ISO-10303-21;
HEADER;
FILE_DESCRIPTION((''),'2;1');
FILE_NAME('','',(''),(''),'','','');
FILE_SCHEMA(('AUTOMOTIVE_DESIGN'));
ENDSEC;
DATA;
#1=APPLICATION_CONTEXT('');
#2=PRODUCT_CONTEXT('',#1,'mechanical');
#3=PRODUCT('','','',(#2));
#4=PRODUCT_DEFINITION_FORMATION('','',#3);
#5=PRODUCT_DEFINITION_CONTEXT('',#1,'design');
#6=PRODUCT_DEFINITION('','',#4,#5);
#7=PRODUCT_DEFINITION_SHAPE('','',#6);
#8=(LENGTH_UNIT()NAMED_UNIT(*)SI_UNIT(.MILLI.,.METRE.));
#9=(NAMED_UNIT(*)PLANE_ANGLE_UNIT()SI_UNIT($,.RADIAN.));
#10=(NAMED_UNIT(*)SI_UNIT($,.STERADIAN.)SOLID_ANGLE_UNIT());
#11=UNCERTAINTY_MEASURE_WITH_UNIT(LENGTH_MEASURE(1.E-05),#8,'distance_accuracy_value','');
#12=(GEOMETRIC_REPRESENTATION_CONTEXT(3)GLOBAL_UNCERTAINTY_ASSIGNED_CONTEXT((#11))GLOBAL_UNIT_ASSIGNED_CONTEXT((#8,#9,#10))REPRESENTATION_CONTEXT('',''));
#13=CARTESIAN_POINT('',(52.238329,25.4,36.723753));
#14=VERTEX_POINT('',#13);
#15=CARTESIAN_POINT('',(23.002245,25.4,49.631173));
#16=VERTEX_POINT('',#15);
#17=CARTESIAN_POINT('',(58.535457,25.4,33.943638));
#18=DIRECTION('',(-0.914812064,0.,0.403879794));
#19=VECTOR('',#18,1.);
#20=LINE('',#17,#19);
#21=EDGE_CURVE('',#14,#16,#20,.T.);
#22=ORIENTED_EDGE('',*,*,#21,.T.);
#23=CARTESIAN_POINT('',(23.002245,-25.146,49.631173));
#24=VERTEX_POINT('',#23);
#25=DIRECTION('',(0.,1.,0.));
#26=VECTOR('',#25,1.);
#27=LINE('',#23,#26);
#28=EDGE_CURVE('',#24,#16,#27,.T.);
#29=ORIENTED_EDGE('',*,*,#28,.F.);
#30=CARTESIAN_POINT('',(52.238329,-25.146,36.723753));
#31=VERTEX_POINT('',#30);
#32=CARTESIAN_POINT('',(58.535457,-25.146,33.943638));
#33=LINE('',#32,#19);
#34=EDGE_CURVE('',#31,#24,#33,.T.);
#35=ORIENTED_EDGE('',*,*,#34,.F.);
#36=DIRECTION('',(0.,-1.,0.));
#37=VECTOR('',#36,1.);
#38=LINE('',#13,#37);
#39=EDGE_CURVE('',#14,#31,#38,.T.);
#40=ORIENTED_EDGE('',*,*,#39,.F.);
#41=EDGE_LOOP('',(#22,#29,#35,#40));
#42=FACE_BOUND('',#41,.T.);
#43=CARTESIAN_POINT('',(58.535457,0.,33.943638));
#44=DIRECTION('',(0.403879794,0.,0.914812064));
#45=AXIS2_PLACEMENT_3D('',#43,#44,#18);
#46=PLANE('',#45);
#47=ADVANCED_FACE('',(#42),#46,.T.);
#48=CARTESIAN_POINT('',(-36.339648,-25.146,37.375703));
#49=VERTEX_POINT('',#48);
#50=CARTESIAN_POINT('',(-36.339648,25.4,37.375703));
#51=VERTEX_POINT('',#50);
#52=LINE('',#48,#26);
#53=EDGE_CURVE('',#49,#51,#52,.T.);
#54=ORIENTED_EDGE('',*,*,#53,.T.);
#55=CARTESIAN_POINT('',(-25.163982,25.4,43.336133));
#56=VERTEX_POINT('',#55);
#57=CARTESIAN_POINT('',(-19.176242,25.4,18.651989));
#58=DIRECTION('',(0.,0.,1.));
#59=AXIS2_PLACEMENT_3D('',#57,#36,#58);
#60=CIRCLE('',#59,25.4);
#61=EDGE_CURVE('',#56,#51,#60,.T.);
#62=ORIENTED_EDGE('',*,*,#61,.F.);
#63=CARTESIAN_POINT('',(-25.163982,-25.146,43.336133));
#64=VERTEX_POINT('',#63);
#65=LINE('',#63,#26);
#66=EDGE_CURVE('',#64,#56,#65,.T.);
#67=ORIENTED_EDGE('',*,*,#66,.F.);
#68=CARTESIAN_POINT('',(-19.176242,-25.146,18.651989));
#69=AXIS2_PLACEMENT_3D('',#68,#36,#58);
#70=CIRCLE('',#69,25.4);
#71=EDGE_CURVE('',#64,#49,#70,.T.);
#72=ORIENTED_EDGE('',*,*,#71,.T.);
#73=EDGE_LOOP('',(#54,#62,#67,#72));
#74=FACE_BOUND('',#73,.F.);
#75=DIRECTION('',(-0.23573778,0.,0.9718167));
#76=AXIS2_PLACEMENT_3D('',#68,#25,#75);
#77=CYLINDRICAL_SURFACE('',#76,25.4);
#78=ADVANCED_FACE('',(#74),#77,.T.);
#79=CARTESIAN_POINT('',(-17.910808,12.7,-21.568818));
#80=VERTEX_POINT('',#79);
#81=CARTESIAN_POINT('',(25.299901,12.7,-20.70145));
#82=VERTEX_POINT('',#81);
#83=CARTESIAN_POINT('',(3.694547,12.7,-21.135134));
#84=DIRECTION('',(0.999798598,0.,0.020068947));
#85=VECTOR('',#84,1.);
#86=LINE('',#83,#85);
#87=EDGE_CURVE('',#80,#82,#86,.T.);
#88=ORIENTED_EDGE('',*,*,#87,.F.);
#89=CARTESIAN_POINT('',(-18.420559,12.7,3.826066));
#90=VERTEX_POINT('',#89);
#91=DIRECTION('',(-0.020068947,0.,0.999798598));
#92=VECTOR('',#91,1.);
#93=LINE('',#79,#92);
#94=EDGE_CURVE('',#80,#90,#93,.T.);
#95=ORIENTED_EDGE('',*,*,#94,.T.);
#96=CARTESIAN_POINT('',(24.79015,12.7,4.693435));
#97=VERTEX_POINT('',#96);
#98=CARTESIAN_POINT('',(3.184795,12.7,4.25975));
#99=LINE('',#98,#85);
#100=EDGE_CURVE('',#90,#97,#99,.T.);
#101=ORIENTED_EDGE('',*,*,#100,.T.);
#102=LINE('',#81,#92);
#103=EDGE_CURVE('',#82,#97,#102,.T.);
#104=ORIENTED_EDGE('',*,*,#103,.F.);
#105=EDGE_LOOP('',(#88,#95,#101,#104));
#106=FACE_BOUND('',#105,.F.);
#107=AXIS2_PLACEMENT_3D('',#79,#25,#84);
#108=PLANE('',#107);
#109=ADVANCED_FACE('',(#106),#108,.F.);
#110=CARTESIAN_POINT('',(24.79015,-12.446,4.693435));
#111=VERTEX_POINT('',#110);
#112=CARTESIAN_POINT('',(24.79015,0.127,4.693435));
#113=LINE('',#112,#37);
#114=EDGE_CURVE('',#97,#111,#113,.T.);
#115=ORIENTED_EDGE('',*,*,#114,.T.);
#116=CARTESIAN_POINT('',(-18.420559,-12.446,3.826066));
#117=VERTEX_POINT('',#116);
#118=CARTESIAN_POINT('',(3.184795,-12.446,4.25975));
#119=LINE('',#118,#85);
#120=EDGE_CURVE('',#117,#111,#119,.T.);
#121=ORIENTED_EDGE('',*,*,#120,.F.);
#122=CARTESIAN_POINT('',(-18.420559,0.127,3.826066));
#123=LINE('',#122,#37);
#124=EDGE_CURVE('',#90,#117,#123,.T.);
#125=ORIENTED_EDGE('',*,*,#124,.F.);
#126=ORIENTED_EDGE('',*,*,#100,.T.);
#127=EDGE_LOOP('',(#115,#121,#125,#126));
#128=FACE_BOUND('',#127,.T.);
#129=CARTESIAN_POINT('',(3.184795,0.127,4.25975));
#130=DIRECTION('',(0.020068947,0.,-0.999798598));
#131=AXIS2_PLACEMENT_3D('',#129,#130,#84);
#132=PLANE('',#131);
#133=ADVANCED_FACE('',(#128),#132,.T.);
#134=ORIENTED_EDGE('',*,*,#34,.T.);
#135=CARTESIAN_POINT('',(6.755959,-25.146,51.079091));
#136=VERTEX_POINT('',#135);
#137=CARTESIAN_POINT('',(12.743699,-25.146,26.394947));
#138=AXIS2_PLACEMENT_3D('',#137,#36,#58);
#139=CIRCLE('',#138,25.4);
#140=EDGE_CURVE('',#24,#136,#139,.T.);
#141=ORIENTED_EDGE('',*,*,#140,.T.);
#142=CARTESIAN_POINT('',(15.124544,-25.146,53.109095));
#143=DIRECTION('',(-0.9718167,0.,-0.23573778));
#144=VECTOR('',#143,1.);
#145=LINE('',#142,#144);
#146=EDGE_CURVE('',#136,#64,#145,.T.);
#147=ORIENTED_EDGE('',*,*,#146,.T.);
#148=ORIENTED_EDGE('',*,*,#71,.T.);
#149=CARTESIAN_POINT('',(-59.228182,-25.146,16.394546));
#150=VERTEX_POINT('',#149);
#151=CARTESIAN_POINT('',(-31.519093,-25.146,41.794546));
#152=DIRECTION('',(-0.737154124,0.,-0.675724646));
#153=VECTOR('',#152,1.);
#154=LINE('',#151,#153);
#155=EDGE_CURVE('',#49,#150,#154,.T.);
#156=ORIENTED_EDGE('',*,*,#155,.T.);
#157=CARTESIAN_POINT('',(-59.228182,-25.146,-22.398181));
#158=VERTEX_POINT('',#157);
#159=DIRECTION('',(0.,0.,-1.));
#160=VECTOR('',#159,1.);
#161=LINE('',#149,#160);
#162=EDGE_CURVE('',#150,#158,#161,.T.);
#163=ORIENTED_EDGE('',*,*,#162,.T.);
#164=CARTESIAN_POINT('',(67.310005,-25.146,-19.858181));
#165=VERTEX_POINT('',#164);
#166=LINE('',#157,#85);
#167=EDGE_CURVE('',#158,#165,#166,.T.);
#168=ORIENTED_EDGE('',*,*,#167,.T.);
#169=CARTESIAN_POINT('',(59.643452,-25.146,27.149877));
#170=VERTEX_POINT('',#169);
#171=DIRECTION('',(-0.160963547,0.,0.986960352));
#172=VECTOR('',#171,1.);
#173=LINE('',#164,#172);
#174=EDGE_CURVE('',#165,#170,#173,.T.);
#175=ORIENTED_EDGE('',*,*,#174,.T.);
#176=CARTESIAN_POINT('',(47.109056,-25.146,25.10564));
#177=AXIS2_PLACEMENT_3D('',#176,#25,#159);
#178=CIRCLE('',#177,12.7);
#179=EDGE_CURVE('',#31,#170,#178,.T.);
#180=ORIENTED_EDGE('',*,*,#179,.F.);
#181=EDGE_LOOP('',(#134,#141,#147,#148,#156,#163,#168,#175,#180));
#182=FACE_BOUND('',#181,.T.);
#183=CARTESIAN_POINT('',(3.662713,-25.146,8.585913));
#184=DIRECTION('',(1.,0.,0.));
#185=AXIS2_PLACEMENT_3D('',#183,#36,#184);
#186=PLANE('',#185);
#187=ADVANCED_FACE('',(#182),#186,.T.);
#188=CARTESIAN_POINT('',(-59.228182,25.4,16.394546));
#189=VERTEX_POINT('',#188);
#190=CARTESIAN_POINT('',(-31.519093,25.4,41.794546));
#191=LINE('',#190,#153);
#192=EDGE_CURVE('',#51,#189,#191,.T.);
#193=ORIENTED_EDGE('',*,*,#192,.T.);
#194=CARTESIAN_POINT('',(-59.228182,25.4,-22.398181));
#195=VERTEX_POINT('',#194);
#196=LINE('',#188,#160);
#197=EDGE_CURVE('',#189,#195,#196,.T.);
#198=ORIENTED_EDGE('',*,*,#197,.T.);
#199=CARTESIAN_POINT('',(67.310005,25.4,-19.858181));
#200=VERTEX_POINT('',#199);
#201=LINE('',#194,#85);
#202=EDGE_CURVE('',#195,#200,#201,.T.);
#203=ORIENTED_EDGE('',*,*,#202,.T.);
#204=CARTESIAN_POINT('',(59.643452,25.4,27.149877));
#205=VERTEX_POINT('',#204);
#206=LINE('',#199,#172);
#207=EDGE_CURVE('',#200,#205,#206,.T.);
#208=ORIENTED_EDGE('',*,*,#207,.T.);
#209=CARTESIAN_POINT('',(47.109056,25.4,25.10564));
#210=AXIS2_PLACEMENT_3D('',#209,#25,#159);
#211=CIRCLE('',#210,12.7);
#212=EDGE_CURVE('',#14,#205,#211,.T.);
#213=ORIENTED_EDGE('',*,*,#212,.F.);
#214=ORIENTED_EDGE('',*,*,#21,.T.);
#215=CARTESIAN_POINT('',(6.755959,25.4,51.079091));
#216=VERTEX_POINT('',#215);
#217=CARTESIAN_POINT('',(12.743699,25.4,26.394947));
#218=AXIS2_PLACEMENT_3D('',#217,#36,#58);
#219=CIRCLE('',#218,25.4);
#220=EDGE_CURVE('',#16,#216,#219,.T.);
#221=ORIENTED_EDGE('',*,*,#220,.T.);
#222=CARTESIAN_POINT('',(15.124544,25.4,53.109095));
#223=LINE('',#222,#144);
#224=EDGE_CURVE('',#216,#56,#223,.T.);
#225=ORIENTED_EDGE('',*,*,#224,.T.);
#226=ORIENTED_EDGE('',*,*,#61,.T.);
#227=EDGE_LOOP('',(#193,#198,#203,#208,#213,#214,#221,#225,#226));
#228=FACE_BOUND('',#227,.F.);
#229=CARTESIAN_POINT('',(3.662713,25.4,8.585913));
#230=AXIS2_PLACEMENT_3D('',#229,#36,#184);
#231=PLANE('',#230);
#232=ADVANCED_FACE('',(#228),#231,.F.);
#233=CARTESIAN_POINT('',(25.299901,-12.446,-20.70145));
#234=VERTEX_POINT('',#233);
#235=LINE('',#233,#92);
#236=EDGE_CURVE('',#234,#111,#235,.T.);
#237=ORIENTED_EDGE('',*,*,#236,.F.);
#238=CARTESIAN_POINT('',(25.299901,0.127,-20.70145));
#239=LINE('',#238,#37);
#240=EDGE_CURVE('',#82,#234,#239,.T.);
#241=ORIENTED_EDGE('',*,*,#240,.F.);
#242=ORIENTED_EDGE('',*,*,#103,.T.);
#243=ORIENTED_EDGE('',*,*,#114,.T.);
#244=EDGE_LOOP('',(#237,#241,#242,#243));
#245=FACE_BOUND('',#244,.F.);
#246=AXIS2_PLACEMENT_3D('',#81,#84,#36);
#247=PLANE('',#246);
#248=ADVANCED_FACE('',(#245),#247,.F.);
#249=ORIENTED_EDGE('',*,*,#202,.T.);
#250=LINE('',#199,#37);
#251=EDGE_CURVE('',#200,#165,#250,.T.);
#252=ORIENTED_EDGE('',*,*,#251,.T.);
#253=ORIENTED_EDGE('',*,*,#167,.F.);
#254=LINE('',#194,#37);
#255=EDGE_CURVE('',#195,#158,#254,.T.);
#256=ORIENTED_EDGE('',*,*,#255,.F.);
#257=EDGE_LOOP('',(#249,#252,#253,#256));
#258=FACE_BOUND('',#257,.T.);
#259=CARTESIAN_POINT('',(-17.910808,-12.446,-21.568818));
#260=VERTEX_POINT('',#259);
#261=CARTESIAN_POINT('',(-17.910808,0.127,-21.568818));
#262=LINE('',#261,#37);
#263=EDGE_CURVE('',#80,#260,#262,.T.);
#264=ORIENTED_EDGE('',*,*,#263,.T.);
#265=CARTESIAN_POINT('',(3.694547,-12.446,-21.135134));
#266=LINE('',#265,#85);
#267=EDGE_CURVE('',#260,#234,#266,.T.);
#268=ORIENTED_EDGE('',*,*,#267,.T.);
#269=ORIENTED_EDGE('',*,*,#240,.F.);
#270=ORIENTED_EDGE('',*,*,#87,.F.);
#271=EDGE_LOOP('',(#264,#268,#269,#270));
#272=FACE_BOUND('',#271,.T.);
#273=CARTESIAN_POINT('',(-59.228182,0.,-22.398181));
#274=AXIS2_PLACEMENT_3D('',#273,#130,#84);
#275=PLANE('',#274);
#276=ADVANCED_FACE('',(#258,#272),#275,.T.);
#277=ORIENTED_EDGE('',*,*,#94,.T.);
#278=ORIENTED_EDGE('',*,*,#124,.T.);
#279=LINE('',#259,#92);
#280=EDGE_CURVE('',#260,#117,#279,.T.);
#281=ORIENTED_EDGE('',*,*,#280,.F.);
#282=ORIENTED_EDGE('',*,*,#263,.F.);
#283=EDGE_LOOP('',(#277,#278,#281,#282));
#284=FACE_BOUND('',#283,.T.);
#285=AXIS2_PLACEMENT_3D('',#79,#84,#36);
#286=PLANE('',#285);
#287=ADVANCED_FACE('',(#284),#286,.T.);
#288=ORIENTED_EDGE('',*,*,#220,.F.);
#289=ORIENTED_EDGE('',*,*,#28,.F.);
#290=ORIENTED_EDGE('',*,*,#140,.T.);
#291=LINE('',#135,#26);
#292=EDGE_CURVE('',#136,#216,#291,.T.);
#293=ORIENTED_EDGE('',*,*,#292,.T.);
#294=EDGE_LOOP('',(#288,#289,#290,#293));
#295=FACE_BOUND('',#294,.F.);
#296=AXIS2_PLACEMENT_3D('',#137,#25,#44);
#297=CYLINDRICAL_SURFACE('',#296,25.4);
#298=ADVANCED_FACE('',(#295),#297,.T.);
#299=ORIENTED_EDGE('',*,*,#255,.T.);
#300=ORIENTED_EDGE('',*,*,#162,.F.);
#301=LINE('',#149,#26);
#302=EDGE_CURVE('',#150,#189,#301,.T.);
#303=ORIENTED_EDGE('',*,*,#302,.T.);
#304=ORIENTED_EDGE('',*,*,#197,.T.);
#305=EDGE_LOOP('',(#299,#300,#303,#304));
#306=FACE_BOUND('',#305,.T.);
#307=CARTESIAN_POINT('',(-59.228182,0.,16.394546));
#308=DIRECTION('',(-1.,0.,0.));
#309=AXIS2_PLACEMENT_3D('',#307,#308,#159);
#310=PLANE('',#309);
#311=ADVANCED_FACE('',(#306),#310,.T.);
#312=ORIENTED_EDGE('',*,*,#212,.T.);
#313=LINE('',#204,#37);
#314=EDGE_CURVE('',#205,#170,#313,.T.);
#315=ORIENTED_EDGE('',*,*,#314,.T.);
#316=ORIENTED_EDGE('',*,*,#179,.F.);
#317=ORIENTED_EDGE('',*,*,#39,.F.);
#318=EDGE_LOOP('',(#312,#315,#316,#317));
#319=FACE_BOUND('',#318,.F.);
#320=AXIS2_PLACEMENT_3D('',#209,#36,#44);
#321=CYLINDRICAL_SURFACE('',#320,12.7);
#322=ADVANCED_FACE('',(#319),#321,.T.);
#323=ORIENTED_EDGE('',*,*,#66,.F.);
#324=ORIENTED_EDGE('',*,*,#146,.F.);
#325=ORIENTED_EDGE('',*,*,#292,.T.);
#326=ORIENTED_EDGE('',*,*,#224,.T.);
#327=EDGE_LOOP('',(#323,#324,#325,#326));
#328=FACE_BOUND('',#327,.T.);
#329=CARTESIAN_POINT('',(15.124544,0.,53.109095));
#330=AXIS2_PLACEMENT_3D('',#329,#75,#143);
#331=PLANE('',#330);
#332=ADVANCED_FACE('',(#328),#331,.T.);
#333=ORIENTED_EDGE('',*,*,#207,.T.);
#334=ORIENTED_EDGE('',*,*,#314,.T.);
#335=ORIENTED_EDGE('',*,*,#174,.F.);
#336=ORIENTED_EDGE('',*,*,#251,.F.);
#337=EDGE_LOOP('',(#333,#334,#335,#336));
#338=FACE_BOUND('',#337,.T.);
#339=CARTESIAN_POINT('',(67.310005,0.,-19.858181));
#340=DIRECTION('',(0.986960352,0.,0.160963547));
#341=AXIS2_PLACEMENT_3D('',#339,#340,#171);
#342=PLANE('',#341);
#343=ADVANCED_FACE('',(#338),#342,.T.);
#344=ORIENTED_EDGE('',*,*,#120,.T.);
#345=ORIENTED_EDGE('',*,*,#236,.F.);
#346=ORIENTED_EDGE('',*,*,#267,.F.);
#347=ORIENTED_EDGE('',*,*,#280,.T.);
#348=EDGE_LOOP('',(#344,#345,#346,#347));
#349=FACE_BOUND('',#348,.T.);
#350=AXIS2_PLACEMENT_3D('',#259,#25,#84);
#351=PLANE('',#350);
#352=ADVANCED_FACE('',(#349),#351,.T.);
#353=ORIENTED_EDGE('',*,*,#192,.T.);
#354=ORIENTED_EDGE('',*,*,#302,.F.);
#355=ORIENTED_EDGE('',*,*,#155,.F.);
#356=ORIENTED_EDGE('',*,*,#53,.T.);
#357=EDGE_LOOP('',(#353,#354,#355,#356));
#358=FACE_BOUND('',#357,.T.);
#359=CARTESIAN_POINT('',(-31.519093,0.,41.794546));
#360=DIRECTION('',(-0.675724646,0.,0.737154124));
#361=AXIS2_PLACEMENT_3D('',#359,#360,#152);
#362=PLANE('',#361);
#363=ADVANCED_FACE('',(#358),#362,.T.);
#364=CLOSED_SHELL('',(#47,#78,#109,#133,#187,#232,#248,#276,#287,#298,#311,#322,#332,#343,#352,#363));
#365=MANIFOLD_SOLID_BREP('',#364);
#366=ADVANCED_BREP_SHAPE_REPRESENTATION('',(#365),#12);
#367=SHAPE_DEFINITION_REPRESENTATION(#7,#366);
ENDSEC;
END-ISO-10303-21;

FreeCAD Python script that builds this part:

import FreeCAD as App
import Part
import Sketcher
from FreeCAD import Vector
Q = App.Units.Quantity


def edges_at(feature, points):
    """Names of the edges that pass closest to the given points."""
    edges = feature.Shape.Edges
    near = lambda p: min(range(len(edges)), key=lambda i: edges[i].distToShape(Part.Vertex(*p))[0])
    return sorted({f"Edge{near(p) + 1}" for p in points})

doc = App.newDocument("Part")
params = doc.addObject("Spreadsheet::Sheet", "Params")
for row, (alias, value) in enumerate([
    ("pad1_length", "0.99 in"),
    ("pad1_length2", "1 in"),
    ("fillet_radius", "0.5 in"),
    ("fillet2_radius", "1 in"),
    ("sketch2_height", "0.99 in"),
    ("pocket1_length", "1 in"),
], start=1):
    params.set(f"A{row}", alias)
    params.set(f"B{row}", "=" + value)
    params.setAlias(f"B{row}", alias)

body = doc.addObject("PartDesign::Body", "Body")

# Sketch on XZ plane
sketch1 = doc.addObject("Sketcher::SketchObject", "Sketch")
body.addObject(sketch1)
sketch1.AttachmentSupport = (doc.XZ_Plane, [""])
sketch1.MapMode = "FlatFace"
sketch1.addGeometry([
    Part.LineSegment(Vector(-59, 16, 0), Vector(-59, -22, 0)),  # 0
    Part.LineSegment(Vector(-59, -22, 0), Vector(67, -20, 0)),  # 1
    Part.LineSegment(Vector(67, -20, 0), Vector(59, 34, 0)),  # 2
    Part.LineSegment(Vector(59, 34, 0), Vector(15, 53, 0)),  # 3
    Part.LineSegment(Vector(15, 53, 0), Vector(-32, 42, 0)),  # 4
    Part.LineSegment(Vector(-32, 42, 0), Vector(-59, 16, 0)),  # 5
], False)
sketch1.addConstraint([
    Sketcher.Constraint("Coincident", 0, 2, 1, 1),
    Sketcher.Constraint("Coincident", 1, 2, 2, 1),
    Sketcher.Constraint("Coincident", 2, 2, 3, 1),
    Sketcher.Constraint("Coincident", 3, 2, 4, 1),
    Sketcher.Constraint("Coincident", 4, 2, 5, 1),
    Sketcher.Constraint("Coincident", 5, 2, 0, 1),
    Sketcher.Constraint("Vertical", 0),
    Sketcher.Constraint("DistanceY", 5, 2, 4, 2, Q("1 in")),
    Sketcher.Constraint("DistanceY", 0, 2, 1, 2, Q("0.1 in")),
    Sketcher.Constraint("DistanceX", 4, 2, 1, 2, 98.829098),
    Sketcher.Constraint("Distance", 4, 47.996331),
    Sketcher.Constraint("DistanceY", 0, 2, 0, 1, 38.792728),
    Sketcher.Constraint("DistanceX", 0, 2, -1, 1, 59.228182),
    Sketcher.Constraint("DistanceY", 0, 2, -1, 1, 22.398181),
    Sketcher.Constraint("DistanceY", -1, 1, 2, 2, 33.943638),
    Sketcher.Constraint("DistanceX", 2, 2, 1, 2, 8.774549),
    Sketcher.Constraint("DistanceX", 0, 2, 2, 2, 117.763638),
    Sketcher.Constraint("DistanceX", 3, 2, 1, 2, 52.185462),
])
pad1 = doc.addObject("PartDesign::Pad", "Pad")
body.addObject(pad1)
pad1.Profile = sketch1
pad1.Type = "TwoLengths"
pad1.setExpression("Length", "Params.pad1_length")
pad1.setExpression("Length2", "Params.pad1_length2")
doc.recompute()

fillet = doc.addObject("PartDesign::Fillet", "Fillet")
body.addObject(fillet)
fillet.Base = (pad1, edges_at(pad1, [(58.535, 0.127, 33.944)]))
fillet.setExpression("Radius", "Params.fillet_radius")
doc.recompute()

fillet2 = doc.addObject("PartDesign::Fillet", "Fillet001")
body.addObject(fillet2)
fillet2.Base = (fillet, edges_at(fillet, [(-31.519, 0.127, 41.795), (15.125, 0.127, 53.109)]))
fillet2.setExpression("Radius", "Params.fillet2_radius")

# Sketch on an angled plane
sketch2 = doc.addObject("Sketcher::SketchObject", "Sketch001")
body.addObject(sketch2)
sketch2.Placement = App.Placement(Vector(0.425562, 0, -21.200752), App.Rotation(Vector(0.999798598, 0, 0.020068947), Vector(0, -0.999999999, 0), Vector(0.020068947, 0, -0.999798598), "ZXY"))
sketch2.addGeometry([
    Part.LineSegment(Vector(-18, 12, 0), Vector(-18, -13, 0)),
    Part.LineSegment(Vector(-18, -13, 0), Vector(25, -13, 0)),
    Part.LineSegment(Vector(25, -13, 0), Vector(25, 12, 0)),
    Part.LineSegment(Vector(25, 12, 0), Vector(-18, 12, 0)),
], False)
sketch2.addConstraint([
    Sketcher.Constraint("Coincident", 0, 2, 1, 1),
    Sketcher.Constraint("Coincident", 1, 2, 2, 1),
    Sketcher.Constraint("Coincident", 2, 2, 3, 1),
    Sketcher.Constraint("Coincident", 3, 2, 0, 1),
    Sketcher.Constraint("Vertical", 0),
    Sketcher.Constraint("Horizontal", 1),
    Sketcher.Constraint("Vertical", 2),
    Sketcher.Constraint("Horizontal", 3),
    Sketcher.Constraint("DistanceY", 0, 2, 0, 1, Q("0.99 in")),
    Sketcher.Constraint("DistanceY", 0, 2, -1, 1, Q("0.5 in")),
    Sketcher.Constraint("DistanceX", 1, 1, 1, 2, 43.219413),
    Sketcher.Constraint("DistanceX", -1, 1, 1, 2, 24.879349),
])
sketch2.setExpression("Constraints[8]", "Params.sketch2_height")
pocket1 = doc.addObject("PartDesign::Pocket", "Pocket")
body.addObject(pocket1)
pocket1.Profile = sketch2
pocket1.setExpression("Length", "Params.pocket1_length")

doc.recompute()
